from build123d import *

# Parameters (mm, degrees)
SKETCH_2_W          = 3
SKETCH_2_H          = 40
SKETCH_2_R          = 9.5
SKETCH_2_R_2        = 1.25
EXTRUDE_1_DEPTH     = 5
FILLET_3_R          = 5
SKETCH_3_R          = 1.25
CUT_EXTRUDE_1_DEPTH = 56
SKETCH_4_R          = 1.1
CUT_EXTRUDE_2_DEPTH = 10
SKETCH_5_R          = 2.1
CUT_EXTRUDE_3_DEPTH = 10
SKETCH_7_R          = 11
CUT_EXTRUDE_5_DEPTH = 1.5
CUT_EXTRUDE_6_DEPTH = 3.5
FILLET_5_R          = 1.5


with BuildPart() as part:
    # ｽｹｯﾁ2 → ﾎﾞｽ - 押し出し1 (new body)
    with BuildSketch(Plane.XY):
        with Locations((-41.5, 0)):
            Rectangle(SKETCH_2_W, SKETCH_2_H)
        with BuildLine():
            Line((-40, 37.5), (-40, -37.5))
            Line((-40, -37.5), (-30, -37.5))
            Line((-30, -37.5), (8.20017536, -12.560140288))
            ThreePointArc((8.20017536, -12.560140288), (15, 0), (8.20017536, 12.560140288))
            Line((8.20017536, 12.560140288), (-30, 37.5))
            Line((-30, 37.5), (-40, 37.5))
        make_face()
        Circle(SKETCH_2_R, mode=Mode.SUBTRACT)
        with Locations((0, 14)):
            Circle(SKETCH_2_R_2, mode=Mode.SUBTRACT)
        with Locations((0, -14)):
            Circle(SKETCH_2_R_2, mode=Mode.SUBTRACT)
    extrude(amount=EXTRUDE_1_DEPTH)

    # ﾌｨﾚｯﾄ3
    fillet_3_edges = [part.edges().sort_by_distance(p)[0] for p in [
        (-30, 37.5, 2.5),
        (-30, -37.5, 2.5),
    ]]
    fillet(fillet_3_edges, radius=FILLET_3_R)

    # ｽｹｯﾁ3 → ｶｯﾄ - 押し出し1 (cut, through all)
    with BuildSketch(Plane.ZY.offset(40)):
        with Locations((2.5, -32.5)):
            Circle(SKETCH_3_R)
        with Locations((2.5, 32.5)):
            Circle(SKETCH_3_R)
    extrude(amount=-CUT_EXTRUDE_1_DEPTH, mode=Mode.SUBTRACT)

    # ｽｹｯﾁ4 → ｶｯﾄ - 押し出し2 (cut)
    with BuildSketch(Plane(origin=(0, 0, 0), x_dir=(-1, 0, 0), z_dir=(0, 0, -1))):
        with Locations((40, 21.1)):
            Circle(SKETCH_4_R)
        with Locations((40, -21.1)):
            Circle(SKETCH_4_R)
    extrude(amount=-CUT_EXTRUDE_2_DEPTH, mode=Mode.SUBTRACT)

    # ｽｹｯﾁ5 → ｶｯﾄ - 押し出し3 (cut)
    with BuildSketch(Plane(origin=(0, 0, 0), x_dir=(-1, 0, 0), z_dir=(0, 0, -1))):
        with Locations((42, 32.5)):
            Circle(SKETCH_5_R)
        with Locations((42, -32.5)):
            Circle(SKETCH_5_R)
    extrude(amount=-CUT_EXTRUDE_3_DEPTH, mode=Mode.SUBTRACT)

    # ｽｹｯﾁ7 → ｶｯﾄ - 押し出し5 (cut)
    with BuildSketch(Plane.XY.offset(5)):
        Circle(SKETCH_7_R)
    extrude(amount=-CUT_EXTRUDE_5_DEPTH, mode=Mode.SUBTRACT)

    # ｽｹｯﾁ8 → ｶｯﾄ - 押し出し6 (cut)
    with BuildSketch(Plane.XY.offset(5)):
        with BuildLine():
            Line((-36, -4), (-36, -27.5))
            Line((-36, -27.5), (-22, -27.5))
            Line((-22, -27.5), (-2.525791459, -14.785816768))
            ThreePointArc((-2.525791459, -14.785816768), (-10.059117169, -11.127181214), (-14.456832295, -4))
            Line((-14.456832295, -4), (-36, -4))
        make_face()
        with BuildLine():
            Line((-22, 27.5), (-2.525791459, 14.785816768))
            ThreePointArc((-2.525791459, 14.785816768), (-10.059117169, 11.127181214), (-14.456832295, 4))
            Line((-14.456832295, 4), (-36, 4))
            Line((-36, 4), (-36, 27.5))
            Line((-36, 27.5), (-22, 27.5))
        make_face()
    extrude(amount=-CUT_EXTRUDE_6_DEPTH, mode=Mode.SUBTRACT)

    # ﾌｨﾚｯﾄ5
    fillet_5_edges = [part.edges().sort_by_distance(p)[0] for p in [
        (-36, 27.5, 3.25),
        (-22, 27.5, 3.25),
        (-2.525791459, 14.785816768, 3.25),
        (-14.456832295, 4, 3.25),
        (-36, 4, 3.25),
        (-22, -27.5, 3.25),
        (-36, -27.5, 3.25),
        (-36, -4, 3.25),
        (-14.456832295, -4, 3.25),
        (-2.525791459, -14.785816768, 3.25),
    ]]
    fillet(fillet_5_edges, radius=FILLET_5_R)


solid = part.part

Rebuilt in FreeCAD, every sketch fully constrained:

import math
import FreeCAD as App
import Part
import Sketcher

V = App.Vector
Q = App.Units.Quantity


def edges_at(feature, points):
    """Names of the edges that pass closest to the given points."""
    edges = feature.Shape.Edges
    near = lambda p: min(range(len(edges)), key=lambda i: edges[i].distToShape(Part.Vertex(*p))[0])
    return sorted({f"Edge{near(p) + 1}" for p in points})

doc = App.newDocument("Part")
params = doc.addObject("Spreadsheet::Sheet", "Params")
for row, (alias, value) in enumerate([
    ("sketch1_diameter", "19 mm"),
    ("sketch1_radius", "15 mm"),
    ("sketch1_diameter2", "2.5 mm"),
    ("sketch1_width", "3 mm"),
    ("sketch1_width2", "10 mm"),
    ("pad1_length", "5 mm"),
    ("fillet_radius", "5 mm"),
    ("sketch2_diameter", "2.5 mm"),
    ("sketch3_diameter", "2.2 mm"),
    ("pocket2_length", "10 mm"),
    ("sketch4_diameter", "4.2 mm"),
    ("pocket3_length", "10 mm"),
    ("sketch5_diameter", "22 mm"),
    ("pocket4_length", "1.5 mm"),
    ("sketch6_radius", "15 mm"),
    ("sketch6_width", "14 mm"),
    ("sketch6_height", "23.5 mm"),
    ("pocket5_length", "3.5 mm"),
    ("fillet2_radius", "1.5 mm"),
], start=1):
    params.set(f"A{row}", alias)
    params.set(f"B{row}", "=" + value)
    params.setAlias(f"B{row}", alias)

body = doc.addObject("PartDesign::Body", "Body")

sketch1 = body.newObject("Sketcher::SketchObject", "Sketch")
sketch1.AttachmentSupport = (doc.getObject("XY_Plane"), [""])
sketch1.MapMode = "FlatFace"
sketch1.addGeometry(Part.LineSegment(V(-43, 20, 0), V(-43, -20, 0)), False)
sketch1.addGeometry(Part.LineSegment(V(-43, -20, 0), V(-40, -20, 0)), False)
sketch1.addGeometry(Part.LineSegment(V(-40, -20, 0), V(-40, -37.5, 0)), False)
sketch1.addGeometry(Part.LineSegment(V(-40, -37.5, 0), V(-30, -37.5, 0)), False)
sketch1.addGeometry(Part.LineSegment(V(-30, -37.5, 0), V(8.2, -12.6, 0)), False)
sketch1.addGeometry(Part.ArcOfCircle(Part.Circle(V(0, 0, 0), V(0, 0, 1), 15), math.radians(-57), math.radians(57)), False)
sketch1.addGeometry(Part.LineSegment(V(8.2, 12.6, 0), V(-30, 37.5, 0)), False)
sketch1.addGeometry(Part.LineSegment(V(-30, 37.5, 0), V(-40, 37.5, 0)), False)
sketch1.addGeometry(Part.LineSegment(V(-40, 37.5, 0), V(-40, 20, 0)), False)
sketch1.addGeometry(Part.LineSegment(V(-40, 20, 0), V(-43, 20, 0)), False)
sketch1.addGeometry(Part.Circle(V(0, -14, 0), V(0, 0, 1), 1.2), False)
sketch1.addGeometry(Part.Circle(V(0, 0, 0), V(0, 0, 1), 9.5), False)
sketch1.addGeometry(Part.Circle(V(0, 14, 0), V(0, 0, 1), 1.2), False)
sketch1.addConstraint(Sketcher.Constraint("Coincident", 0, 2, 1, 1))
sketch1.addConstraint(Sketcher.Constraint("Coincident", 1, 2, 2, 1))
sketch1.addConstraint(Sketcher.Constraint("Coincident", 2, 2, 3, 1))
sketch1.addConstraint(Sketcher.Constraint("Coincident", 3, 2, 4, 1))
sketch1.addConstraint(Sketcher.Constraint("Tangent", 4, 2, 5, 1))
sketch1.addConstraint(Sketcher.Constraint("Tangent", 5, 2, 6, 1))
sketch1.addConstraint(Sketcher.Constraint("Coincident", 6, 2, 7, 1))
sketch1.addConstraint(Sketcher.Constraint("Coincident", 7, 2, 8, 1))
sketch1.addConstraint(Sketcher.Constraint("Coincident", 8, 2, 9, 1))
sketch1.addConstraint(Sketcher.Constraint("Coincident", 9, 2, 0, 1))
sketch1.addConstraint(Sketcher.Constraint("Vertical", 0))
sketch1.addConstraint(Sketcher.Constraint("Horizontal", 1))
sketch1.addConstraint(Sketcher.Constraint("Vertical", 2))
sketch1.addConstraint(Sketcher.Constraint("Horizontal", 3))
sketch1.addConstraint(Sketcher.Constraint("Horizontal", 7))
sketch1.addConstraint(Sketcher.Constraint("Vertical", 8))
sketch1.addConstraint(Sketcher.Constraint("Horizontal", 9))
sketch1.addConstraint(Sketcher.Constraint("Coincident", 5, 3, -1, 1))
sketch1.addConstraint(Sketcher.Constraint("Coincident", 11, 3, -1, 1))
sketch1.addConstraint(Sketcher.Constraint("Equal", 10, 12))
sketch1.addConstraint(Sketcher.Constraint("Symmetric", 10, 3, 12, 3, -1, 1))
sketch1.addConstraint(Sketcher.Constraint("Symmetric", 3, 2, 6, 2, -1))
sketch1.addConstraint(Sketcher.Constraint("Symmetric", 1, 2, 8, 2, -1))
sketch1.addConstraint(Sketcher.Constraint("PointOnObject", 10, 3, -2))
sketch1.addConstraint(Sketcher.Constraint("Diameter", 11, Q("19 mm")))
sketch1.addConstraint(Sketcher.Constraint("Radius", 5, Q("15 mm")))
sketch1.addConstraint(Sketcher.Constraint("Diameter", 10, Q("2.5 mm")))
sketch1.addConstraint(Sketcher.Constraint("DistanceX", 1, 1, 1, 2, Q("3 mm")))
sketch1.addConstraint(Sketcher.Constraint("DistanceX", 3, 1, 3, 2, Q("10 mm")))
sketch1.addConstraint(Sketcher.Constraint("DistanceY", 0, 2, 0, 1, Q("40 mm")))
sketch1.addConstraint(Sketcher.Constraint("DistanceY", 2, 2, 2, 1, Q("17.5 mm")))
sketch1.addConstraint(Sketcher.Constraint("DistanceY", 10, 3, -1, 1, Q("14 mm")))
sketch1.addConstraint(Sketcher.Constraint("DistanceX", 0, 2, -1, 1, Q("43 mm")))
sketch1.setExpression("Constraints[24]", "Params.sketch1_diameter")
sketch1.setExpression("Constraints[25]", "Params.sketch1_radius")
sketch1.setExpression("Constraints[26]", "Params.sketch1_diameter2")
sketch1.setExpression("Constraints[27]", "Params.sketch1_width")
sketch1.setExpression("Constraints[28]", "Params.sketch1_width2")
pad1 = body.newObject("PartDesign::Pad", "Pad")
pad1.Profile = sketch1
pad1.setExpression("Length", "Params.pad1_length")
doc.recompute()

fillet = body.newObject("PartDesign::Fillet", "Fillet")
fillet.Base = (pad1, edges_at(pad1, [(-30, 37.5, 2.5), (-30, -37.5, 2.5)]))
fillet.setExpression("Radius", "Params.fillet_radius")

sketch2 = body.newObject("Sketcher::SketchObject", "Sketch001")
sketch2.AttachmentSupport = (doc.getObject("YZ_Plane"), [""])
sketch2.MapMode = "FlatFace"
sketch2.AttachmentOffset = App.Placement(V(0, 0, -40), App.Rotation())
sketch2.addGeometry(Part.Circle(V(-32.5, 2.5, 0), V(0, 0, 1), 1.2), False)
sketch2.addGeometry(Part.Circle(V(32.5, 2.5, 0), V(0, 0, 1), 1.2), False)
sketch2.addConstraint(Sketcher.Constraint("Equal", 0, 1))
sketch2.addConstraint(Sketcher.Constraint("Symmetric", 0, 3, 1, 3, -2))
sketch2.addConstraint(Sketcher.Constraint("Diameter", 0, Q("2.5 mm")))
sketch2.addConstraint(Sketcher.Constraint("DistanceX", 0, 3, 1, 3, Q("65 mm")))
sketch2.addConstraint(Sketcher.Constraint("DistanceY", -1, 1, 0, 3, Q("2.5 mm")))
sketch2.setExpression("Constraints[2]", "Params.sketch2_diameter")
pocket1 = body.newObject("PartDesign::Pocket", "Pocket")
pocket1.Profile = sketch2
pocket1.Type = "ThroughAll"
pocket1.Reversed = True

sketch3 = body.newObject("Sketcher::SketchObject", "Sketch002")
sketch3.AttachmentSupport = (doc.getObject("XY_Plane"), [""])
sketch3.MapMode = "FlatFace"
sketch3.addGeometry(Part.Circle(V(-40, 21.1, 0), V(0, 0, 1), 1.1), False)
sketch3.addGeometry(Part.Circle(V(-40, -21.1, 0), V(0, 0, 1), 1.1), False)
sketch3.addConstraint(Sketcher.Constraint("Equal", 0, 1))
sketch3.addConstraint(Sketcher.Constraint("Symmetric", 0, 3, 1, 3, -1))
sketch3.addConstraint(Sketcher.Constraint("Diameter", 0, Q("2.2 mm")))
sketch3.addConstraint(Sketcher.Constraint("DistanceX", 0, 3, -1, 1, Q("40 mm")))
sketch3.addConstraint(Sketcher.Constraint("DistanceY", -1, 1, 0, 3, Q("21.1 mm")))
sketch3.setExpression("Constraints[2]", "Params.sketch3_diameter")
pocket2 = body.newObject("PartDesign::Pocket", "Pocket001")
pocket2.Profile = sketch3
pocket2.setExpression("Length", "Params.pocket2_length")
pocket2.Reversed = True

sketch4 = body.newObject("Sketcher::SketchObject", "Sketch003")
sketch4.AttachmentSupport = (doc.getObject("XY_Plane"), [""])
sketch4.MapMode = "FlatFace"
sketch4.addGeometry(Part.Circle(V(-42, 32.5, 0), V(0, 0, 1), 2.1), False)
sketch4.addGeometry(Part.Circle(V(-42, -32.5, 0), V(0, 0, 1), 2.1), False)
sketch4.addConstraint(Sketcher.Constraint("Equal", 0, 1))
sketch4.addConstraint(Sketcher.Constraint("Symmetric", 0, 3, 1, 3, -1))
sketch4.addConstraint(Sketcher.Constraint("Diameter", 0, Q("4.2 mm")))
sketch4.addConstraint(Sketcher.Constraint("DistanceX", 0, 3, -1, 1, Q("42 mm")))
sketch4.addConstraint(Sketcher.Constraint("DistanceY", 1, 3, 0, 3, Q("65 mm")))
sketch4.setExpression("Constraints[2]", "Params.sketch4_diameter")
pocket3 = body.newObject("PartDesign::Pocket", "Pocket002")
pocket3.Profile = sketch4
pocket3.setExpression("Length", "Params.pocket3_length")
pocket3.Reversed = True

sketch5 = body.newObject("Sketcher::SketchObject", "Sketch004")
sketch5.AttachmentSupport = (doc.getObject("XY_Plane"), [""])
sketch5.MapMode = "FlatFace"
sketch5.AttachmentOffset = App.Placement(V(0, 0, 5), App.Rotation())
sketch5.addGeometry(Part.Circle(V(0, 0, 0), V(0, 0, 1), 11), False)
sketch5.addConstraint(Sketcher.Constraint("Coincident", 0, 3, -1, 1))
sketch5.addConstraint(Sketcher.Constraint("Diameter", 0, Q("22 mm")))
sketch5.setExpression("Constraints[1]", "Params.sketch5_diameter")
pocket4 = body.newObject("PartDesign::Pocket", "Pocket003")
pocket4.Profile = sketch5
pocket4.setExpression("Length", "Params.pocket4_length")

sketch6 = body.newObject("Sketcher::SketchObject", "Sketch005")
sketch6.AttachmentSupport = (doc.getObject("XY_Plane"), [""])
sketch6.MapMode = "FlatFace"
sketch6.AttachmentOffset = App.Placement(V(0, 0, 5), App.Rotation())
sketch6.addGeometry(Part.LineSegment(V(-36, -4, 0), V(-36, -28, 0)), False)
sketch6.addGeometry(Part.LineSegment(V(-36, -28, 0), V(-22, -28, 0)), False)
sketch6.addGeometry(Part.LineSegment(V(-22, -28, 0), V(-3, -15, 0)), False)
sketch6.addGeometry(Part.ArcOfCircle(Part.Circle(V(0, 0, 0), V(0, 0, 1), 15), math.radians(-165), math.radians(-100)), False)
sketch6.addGeometry(Part.LineSegment(V(-14, -4, 0), V(-36, -4, 0)), False)
sketch6.addGeometry(Part.LineSegment(V(-3, 15, 0), V(-22, 28, 0)), False)
sketch6.addGeometry(Part.LineSegment(V(-22, 28, 0), V(-36, 28, 0)), False)
sketch6.addGeometry(Part.LineSegment(V(-36, 28, 0), V(-36, 4, 0)), False)
sketch6.addGeometry(Part.LineSegment(V(-36, 4, 0), V(-14, 4, 0)), False)
sketch6.addGeometry(Part.ArcOfCircle(Part.Circle(V(0, 0, 0), V(0, 0, 1), 15), math.radians(100), math.radians(165)), False)
sketch6.addConstraint(Sketcher.Constraint("Coincident", 0, 2, 1, 1))
sketch6.addConstraint(Sketcher.Constraint("Coincident", 1, 2, 2, 1))
sketch6.addConstraint(Sketcher.Constraint("Coincident", 2, 2, 3, 2))
sketch6.addConstraint(Sketcher.Constraint("Coincident", 3, 1, 4, 1))
sketch6.addConstraint(Sketcher.Constraint("Coincident", 4, 2, 0, 1))
sketch6.addConstraint(Sketcher.Constraint("Coincident", 5, 2, 6, 1))
sketch6.addConstraint(Sketcher.Constraint("Coincident", 6, 2, 7, 1))
sketch6.addConstraint(Sketcher.Constraint("Coincident", 7, 2, 8, 1))
sketch6.addConstraint(Sketcher.Constraint("Coincident", 8, 2, 9, 2))
sketch6.addConstraint(Sketcher.Constraint("Coincident", 9, 1, 5, 1))
sketch6.addConstraint(Sketcher.Constraint("Vertical", 0))
sketch6.addConstraint(Sketcher.Constraint("Horizontal", 1))
sketch6.addConstraint(Sketcher.Constraint("Horizontal", 4))
sketch6.addConstraint(Sketcher.Constraint("Horizontal", 6))
sketch6.addConstraint(Sketcher.Constraint("Vertical", 7))
sketch6.addConstraint(Sketcher.Constraint("Horizontal", 8))
sketch6.addConstraint(Sketcher.Constraint("Coincident", 3, 3, -1, 1))
sketch6.addConstraint(Sketcher.Constraint("Coincident", 9, 3, -1, 1))
sketch6.addConstraint(Sketcher.Constraint("Equal", 3, 9))
sketch6.addConstraint(Sketcher.Constraint("Symmetric", 1, 2, 5, 2, -1))
sketch6.addConstraint(Sketcher.Constraint("Symmetric", 4, 2, 7, 2, -1))
sketch6.addConstraint(Sketcher.Constraint("Vertical", 2, 2, 9, 1))
sketch6.addConstraint(Sketcher.Constraint("Radius", 3, Q("15 mm")))
sketch6.addConstraint(Sketcher.Constraint("DistanceX", 1, 1, 1, 2, Q("14 mm")))
sketch6.addConstraint(Sketcher.Constraint("DistanceY", 0, 2, 0, 1, Q("23.5 mm")))
sketch6.addConstraint(Sketcher.Constraint("DistanceX", 0, 2, -1, 1, Q("36 mm")))
sketch6.addConstraint(Sketcher.Constraint("DistanceY", 3, 1, -1, 1, Q("4 mm")))
sketch6.addConstraint(Sketcher.Constraint("DistanceX", 2, 2, -1, 1, Q("2.525791 mm")))
sketch6.setExpression("Constraints[22]", "Params.sketch6_radius")
sketch6.setExpression("Constraints[23]", "Params.sketch6_width")
sketch6.setExpression("Constraints[24]", "Params.sketch6_height")
pocket5 = body.newObject("PartDesign::Pocket", "Pocket004")
pocket5.Profile = sketch6
pocket5.setExpression("Length", "Params.pocket5_length")
doc.recompute()

fillet2 = body.newObject("PartDesign::Fillet", "Fillet001")
fillet2.Base = (pocket5, edges_at(pocket5, [
    (-36, 27.5, 3.25),
    (-22, 27.5, 3.25),
    (-2.526, 14.786, 3.25),
    (-14.457, 4, 3.25),
    (-36, 4, 3.25),
    (-22, -27.5, 3.25),
    (-36, -27.5, 3.25),
    (-36, -4, 3.25),
    (-14.457, -4, 3.25),
    (-2.526, -14.786, 3.25),
]))
fillet2.setExpression("Radius", "Params.fillet2_radius")

doc.recompute()
